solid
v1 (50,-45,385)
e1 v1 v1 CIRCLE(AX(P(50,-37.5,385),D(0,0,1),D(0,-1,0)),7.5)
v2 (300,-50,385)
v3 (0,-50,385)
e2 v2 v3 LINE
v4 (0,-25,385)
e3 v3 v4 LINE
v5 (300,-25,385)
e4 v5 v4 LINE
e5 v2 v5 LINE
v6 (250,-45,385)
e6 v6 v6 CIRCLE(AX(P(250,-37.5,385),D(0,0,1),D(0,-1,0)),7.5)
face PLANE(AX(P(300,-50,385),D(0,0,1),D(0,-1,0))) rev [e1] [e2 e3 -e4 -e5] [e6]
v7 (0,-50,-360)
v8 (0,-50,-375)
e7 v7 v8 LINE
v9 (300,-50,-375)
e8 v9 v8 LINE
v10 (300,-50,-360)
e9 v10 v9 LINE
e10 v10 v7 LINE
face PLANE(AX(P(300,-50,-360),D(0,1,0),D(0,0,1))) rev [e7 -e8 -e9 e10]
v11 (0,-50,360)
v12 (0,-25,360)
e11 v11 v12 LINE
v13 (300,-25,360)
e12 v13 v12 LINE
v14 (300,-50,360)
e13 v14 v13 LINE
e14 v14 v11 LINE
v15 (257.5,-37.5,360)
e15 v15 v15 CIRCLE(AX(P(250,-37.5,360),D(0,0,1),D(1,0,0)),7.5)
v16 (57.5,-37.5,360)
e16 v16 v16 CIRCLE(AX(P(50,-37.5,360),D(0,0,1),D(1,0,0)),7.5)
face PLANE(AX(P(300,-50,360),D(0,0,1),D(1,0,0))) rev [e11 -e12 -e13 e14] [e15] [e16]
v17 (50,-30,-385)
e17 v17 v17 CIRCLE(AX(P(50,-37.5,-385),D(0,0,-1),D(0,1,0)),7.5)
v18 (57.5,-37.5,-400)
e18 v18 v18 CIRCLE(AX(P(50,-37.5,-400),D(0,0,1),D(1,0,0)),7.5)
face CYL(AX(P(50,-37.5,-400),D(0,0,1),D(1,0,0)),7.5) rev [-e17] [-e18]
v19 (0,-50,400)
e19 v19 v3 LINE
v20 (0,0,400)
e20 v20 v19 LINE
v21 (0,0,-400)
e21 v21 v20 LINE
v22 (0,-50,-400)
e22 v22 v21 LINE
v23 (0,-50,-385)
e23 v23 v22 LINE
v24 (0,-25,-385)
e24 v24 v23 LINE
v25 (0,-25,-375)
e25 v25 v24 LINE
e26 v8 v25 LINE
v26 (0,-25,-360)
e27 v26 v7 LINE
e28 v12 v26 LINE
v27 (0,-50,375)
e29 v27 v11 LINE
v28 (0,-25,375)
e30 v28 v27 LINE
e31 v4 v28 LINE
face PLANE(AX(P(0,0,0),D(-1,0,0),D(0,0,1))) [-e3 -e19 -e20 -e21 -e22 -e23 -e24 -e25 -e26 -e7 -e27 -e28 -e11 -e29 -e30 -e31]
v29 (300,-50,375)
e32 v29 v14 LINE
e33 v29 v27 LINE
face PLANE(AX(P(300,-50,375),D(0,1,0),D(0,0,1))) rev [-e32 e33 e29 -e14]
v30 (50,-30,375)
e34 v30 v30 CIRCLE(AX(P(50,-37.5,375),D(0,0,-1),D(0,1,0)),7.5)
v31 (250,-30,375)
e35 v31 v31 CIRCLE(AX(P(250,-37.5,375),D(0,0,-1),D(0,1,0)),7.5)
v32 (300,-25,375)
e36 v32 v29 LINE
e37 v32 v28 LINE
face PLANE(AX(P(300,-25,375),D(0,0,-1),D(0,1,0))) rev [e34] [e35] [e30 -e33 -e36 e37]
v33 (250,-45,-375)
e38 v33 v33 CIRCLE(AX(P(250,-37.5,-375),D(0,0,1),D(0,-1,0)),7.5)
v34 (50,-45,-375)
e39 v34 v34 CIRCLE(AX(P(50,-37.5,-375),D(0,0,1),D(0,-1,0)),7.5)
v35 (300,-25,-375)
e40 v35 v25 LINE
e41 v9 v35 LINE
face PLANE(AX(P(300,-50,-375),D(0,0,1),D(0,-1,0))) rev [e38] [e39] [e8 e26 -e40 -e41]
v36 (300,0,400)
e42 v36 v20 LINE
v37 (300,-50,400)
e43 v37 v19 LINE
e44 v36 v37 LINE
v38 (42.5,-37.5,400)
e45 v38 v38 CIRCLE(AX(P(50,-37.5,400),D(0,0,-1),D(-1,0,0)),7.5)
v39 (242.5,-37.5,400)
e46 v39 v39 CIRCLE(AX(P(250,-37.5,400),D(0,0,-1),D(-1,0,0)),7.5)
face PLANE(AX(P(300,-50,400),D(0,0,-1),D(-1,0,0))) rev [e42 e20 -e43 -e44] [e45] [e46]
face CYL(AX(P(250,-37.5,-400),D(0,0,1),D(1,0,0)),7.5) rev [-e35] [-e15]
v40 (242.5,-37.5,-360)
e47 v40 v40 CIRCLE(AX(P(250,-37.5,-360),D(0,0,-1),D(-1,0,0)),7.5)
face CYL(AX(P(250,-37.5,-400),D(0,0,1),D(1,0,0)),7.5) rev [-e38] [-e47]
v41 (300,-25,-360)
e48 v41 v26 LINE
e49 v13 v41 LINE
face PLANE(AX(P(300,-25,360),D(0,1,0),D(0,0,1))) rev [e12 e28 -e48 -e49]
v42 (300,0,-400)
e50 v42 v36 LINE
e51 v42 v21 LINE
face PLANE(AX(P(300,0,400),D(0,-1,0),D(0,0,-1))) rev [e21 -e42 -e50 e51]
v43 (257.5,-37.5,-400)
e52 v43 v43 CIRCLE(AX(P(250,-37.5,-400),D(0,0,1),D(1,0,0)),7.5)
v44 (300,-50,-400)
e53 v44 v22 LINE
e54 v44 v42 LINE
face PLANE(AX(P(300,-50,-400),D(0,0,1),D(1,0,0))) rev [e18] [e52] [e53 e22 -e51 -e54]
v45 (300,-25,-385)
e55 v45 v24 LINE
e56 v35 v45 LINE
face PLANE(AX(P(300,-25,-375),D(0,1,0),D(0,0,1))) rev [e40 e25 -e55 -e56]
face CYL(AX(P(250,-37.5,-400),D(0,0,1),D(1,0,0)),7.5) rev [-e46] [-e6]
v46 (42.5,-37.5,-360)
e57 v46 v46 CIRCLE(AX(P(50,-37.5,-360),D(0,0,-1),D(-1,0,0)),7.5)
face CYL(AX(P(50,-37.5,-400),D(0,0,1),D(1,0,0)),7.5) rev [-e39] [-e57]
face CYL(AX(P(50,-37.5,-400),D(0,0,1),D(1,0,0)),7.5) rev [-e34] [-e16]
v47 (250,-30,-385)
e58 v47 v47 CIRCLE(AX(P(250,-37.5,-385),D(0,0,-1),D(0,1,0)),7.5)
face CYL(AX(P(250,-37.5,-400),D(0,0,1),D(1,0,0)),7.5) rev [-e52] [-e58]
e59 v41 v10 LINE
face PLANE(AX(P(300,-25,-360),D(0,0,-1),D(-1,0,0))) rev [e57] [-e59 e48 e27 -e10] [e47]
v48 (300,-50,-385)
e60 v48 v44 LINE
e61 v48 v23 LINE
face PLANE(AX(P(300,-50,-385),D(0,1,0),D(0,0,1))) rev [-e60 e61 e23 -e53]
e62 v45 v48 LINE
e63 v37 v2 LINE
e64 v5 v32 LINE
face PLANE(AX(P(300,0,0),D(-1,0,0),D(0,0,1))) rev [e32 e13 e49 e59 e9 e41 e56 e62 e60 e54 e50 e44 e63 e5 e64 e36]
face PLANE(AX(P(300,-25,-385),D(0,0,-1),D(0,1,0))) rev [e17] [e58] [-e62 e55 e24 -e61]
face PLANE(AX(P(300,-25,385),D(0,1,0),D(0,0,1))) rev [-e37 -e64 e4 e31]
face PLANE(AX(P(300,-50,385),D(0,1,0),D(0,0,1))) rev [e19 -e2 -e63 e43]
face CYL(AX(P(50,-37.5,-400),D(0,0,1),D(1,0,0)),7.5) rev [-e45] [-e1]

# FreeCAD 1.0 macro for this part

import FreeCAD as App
import Part
import Sketcher

V = App.Vector


def add_polygon(sketch, points):
    """Adds a closed chain of lines whose ends are joined by coincident constraints."""
    first, n = sketch.GeometryCount, len(points)
    for a, b in zip(points, points[1:] + points[:1]):
        sketch.addGeometry(Part.LineSegment(App.Vector(*a, 0), App.Vector(*b, 0)), False)
    for i in range(n):
        sketch.addConstraint(Sketcher.Constraint("Coincident", first + i, 2, first + (i + 1) % n, 1))

doc = App.newDocument("Part")
body = doc.addObject("PartDesign::Body", "Body")

# Sketch on YZ plane
sketch1 = body.newObject("Sketcher::SketchObject", "Sketch")
sketch1.AttachmentSupport = (doc.getObject("YZ_Plane"), [""])
sketch1.MapMode = "FlatFace"
add_polygon(sketch1, [(0, -400), (0, 400), (-50, 400), (-50, 385), (-25, 385), (-25, 375), (-50, 375), (-50, 360), (-25, 360), (-25, -360), (-50, -360), (-50, -375), (-25, -375), (-25, -385), (-50, -385), (-50, -400)])  # lines 0-15
sketch1.addConstraint([
    Sketcher.Constraint("Vertical", 0),
    Sketcher.Constraint("Horizontal", 1),
    Sketcher.Constraint("Vertical", 2),
    Sketcher.Constraint("Horizontal", 3),
    Sketcher.Constraint("Vertical", 4),
    Sketcher.Constraint("Horizontal", 5),
    Sketcher.Constraint("Vertical", 6),
    Sketcher.Constraint("Horizontal", 7),
    Sketcher.Constraint("Vertical", 8),
    Sketcher.Constraint("Horizontal", 9),
    Sketcher.Constraint("Vertical", 10),
    Sketcher.Constraint("Horizontal", 11),
    Sketcher.Constraint("Vertical", 12),
    Sketcher.Constraint("Horizontal", 13),
    Sketcher.Constraint("Vertical", 14),
    Sketcher.Constraint("Horizontal", 15),
    Sketcher.Constraint("Symmetric", 0, 2, 15, 2, -1, 1),
    Sketcher.Constraint("Symmetric", 6, 2, 9, 2, -1),
    Sketcher.Constraint("Symmetric", 4, 2, 11, 2, -1),
    Sketcher.Constraint("Symmetric", 2, 2, 13, 2, -1),
    Sketcher.Constraint("Vertical", 2, 2, 5, 2),
    Sketcher.Constraint("Vertical", 4, 2, 7, 2),
    Sketcher.Constraint("Equal", 2, 6),
    Sketcher.Constraint("DistanceX", 1, 2, 1, 1, 50.0),
    Sketcher.Constraint("DistanceX", 3, 1, 3, 2, 25.0),
    Sketcher.Constraint("DistanceY", 0, 1, 0, 2, 800.0),
    Sketcher.Constraint("DistanceY", 2, 2, 2, 1, 15.0),
    Sketcher.Constraint("DistanceY", 4, 2, 4, 1, 10.0),
])
pad1 = body.newObject("PartDesign::Pad", "Pad")
pad1.Profile = sketch1
pad1.Length = 300

# Sketch on XY plane
sketch2 = body.newObject("Sketcher::SketchObject", "Sketch001")
sketch2.AttachmentSupport = (doc.getObject("XY_Plane"), [""])
sketch2.MapMode = "FlatFace"
sketch2.AttachmentOffset = App.Placement(V(0, 0, 400), App.Rotation())
sketch2.addGeometry([
    Part.Circle(V(50, -38, 0), V(0, 0, 1), 8),
    Part.Circle(V(250, -38, 0), V(0, 0, 1), 8),
], False)
sketch2.addConstraint([
    Sketcher.Constraint("Equal", 0, 1),
    Sketcher.Constraint("Horizontal", 0, 3, 1, 3),
    Sketcher.Constraint("Diameter", 0, 15.0),
    Sketcher.Constraint("DistanceX", -1, 1, 0, 3, 50.0),
    Sketcher.Constraint("DistanceX", -1, 1, 1, 3, 250.0),
    Sketcher.Constraint("DistanceY", 0, 3, -1, 1, 37.5),
])
pocket1 = body.newObject("PartDesign::Pocket", "Pocket")
pocket1.Profile = sketch2
pocket1.Type = "ThroughAll"
pocket1.Midplane = True

doc.recompute()
